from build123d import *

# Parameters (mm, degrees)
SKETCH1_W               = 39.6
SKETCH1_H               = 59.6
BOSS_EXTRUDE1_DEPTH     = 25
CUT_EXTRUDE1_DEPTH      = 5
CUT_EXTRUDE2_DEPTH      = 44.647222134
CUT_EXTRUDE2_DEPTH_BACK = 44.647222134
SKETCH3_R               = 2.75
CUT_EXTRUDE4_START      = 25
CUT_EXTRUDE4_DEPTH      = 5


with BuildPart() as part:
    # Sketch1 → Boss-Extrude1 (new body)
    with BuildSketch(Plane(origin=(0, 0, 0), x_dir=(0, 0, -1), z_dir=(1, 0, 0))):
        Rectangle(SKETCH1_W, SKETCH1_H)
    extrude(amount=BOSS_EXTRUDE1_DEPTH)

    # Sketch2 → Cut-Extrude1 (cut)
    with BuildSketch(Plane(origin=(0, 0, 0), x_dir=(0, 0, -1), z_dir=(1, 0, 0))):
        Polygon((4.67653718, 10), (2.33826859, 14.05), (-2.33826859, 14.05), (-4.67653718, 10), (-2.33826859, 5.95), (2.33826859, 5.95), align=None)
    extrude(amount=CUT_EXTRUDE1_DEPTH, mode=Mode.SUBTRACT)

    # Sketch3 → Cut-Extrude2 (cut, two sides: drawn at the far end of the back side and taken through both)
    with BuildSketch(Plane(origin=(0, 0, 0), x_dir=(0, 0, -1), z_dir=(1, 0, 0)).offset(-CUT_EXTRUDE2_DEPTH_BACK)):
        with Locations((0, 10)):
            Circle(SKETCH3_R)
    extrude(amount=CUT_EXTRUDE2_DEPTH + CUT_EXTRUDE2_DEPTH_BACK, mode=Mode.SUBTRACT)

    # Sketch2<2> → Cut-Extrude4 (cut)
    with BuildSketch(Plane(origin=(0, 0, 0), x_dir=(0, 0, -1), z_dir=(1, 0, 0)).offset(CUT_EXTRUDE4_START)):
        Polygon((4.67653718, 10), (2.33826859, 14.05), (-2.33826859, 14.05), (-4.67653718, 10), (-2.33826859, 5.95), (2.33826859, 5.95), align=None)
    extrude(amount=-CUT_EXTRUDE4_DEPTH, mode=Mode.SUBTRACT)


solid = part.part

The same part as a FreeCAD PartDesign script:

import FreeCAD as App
import Part
import Sketcher
from FreeCAD import Vector
Q = App.Units.Quantity

doc = App.newDocument("Part")
body = doc.addObject("PartDesign::Body", "Body")

sketch1 = body.newObject("Sketcher::SketchObject", "Sketch")
sketch1.AttachmentSupport = (doc.getObject("YZ_Plane"), [""])
sketch1.MapMode = "FlatFace"
sketch1.addGeometry([
    Part.LineSegment(Vector(29.8, 19.8, 0), Vector(-29.8, 19.8, 0)),
    Part.LineSegment(Vector(-29.8, 19.8, 0), Vector(-29.8, -19.8, 0)),
    Part.LineSegment(Vector(-29.8, -19.8, 0), Vector(29.8, -19.8, 0)),
    Part.LineSegment(Vector(29.8, -19.8, 0), Vector(29.8, 19.8, 0)),
], False)
sketch1.addConstraint([
    Sketcher.Constraint("Coincident", 0, 2, 1, 1),
    Sketcher.Constraint("Coincident", 1, 2, 2, 1),
    Sketcher.Constraint("Coincident", 2, 2, 3, 1),
    Sketcher.Constraint("Coincident", 3, 2, 0, 1),
    Sketcher.Constraint("Horizontal", 0),
    Sketcher.Constraint("Vertical", 1),
    Sketcher.Constraint("Horizontal", 2),
    Sketcher.Constraint("Vertical", 3),
    Sketcher.Constraint("Symmetric", 0, 2, 2, 2, -1, 1),
    Sketcher.Constraint("DistanceX", 0, 2, 0, 1, 59.6),
    Sketcher.Constraint("DistanceY", 1, 2, 1, 1, 39.6),
])
pad1 = body.newObject("PartDesign::Pad", "Pad")
pad1.Profile = sketch1
pad1.Length = 25

sketch2 = body.newObject("Sketcher::SketchObject", "Sketch001")
sketch2.AttachmentSupport = (doc.getObject("YZ_Plane"), [""])
sketch2.MapMode = "FlatFace"
sketch2.addGeometry([
    Part.LineSegment(Vector(10, -4.676537, 0), Vector(14.05, -2.338269, 0)),
    Part.LineSegment(Vector(14.05, -2.338269, 0), Vector(14.05, 2.338269, 0)),
    Part.LineSegment(Vector(14.05, 2.338269, 0), Vector(10, 4.676537, 0)),
    Part.LineSegment(Vector(10, 4.676537, 0), Vector(5.95, 2.338269, 0)),
    Part.LineSegment(Vector(5.95, 2.338269, 0), Vector(5.95, -2.338269, 0)),
    Part.LineSegment(Vector(5.95, -2.338269, 0), Vector(10, -4.676537, 0)),
], False)
sketch2.addConstraint([
    Sketcher.Constraint("Coincident", 0, 2, 1, 1),
    Sketcher.Constraint("Coincident", 1, 2, 2, 1),
    Sketcher.Constraint("Coincident", 2, 2, 3, 1),
    Sketcher.Constraint("Coincident", 3, 2, 4, 1),
    Sketcher.Constraint("Coincident", 4, 2, 5, 1),
    Sketcher.Constraint("Coincident", 5, 2, 0, 1),
    Sketcher.Constraint("Vertical", 1),
    Sketcher.Constraint("Vertical", 4),
    Sketcher.Constraint("Symmetric", 2, 2, 5, 2, -1),
    Sketcher.Constraint("Parallel", 0, 3),
    Sketcher.Constraint("Parallel", 2, 5),
    Sketcher.Constraint("Horizontal", 1, 2, 3, 2),
    Sketcher.Constraint("Horizontal", 0, 2, 4, 2),
    Sketcher.Constraint("Angle", 0, Q("30 deg")),
    Sketcher.Constraint("DistanceX", -1, 1, 2, 2, 10.0),
    Sketcher.Constraint("DistanceX", 3, 2, 1, 2, 8.1),
    Sketcher.Constraint("DistanceY", 1, 1, 1, 2, 4.676537),
])
pocket1 = body.newObject("PartDesign::Pocket", "Pocket")
pocket1.Profile = sketch2
pocket1.Length = 5
pocket1.Reversed = True

sketch3 = body.newObject("Sketcher::SketchObject", "Sketch002")
sketch3.AttachmentSupport = (doc.getObject("YZ_Plane"), [""])
sketch3.MapMode = "FlatFace"
sketch3.addGeometry(Part.Circle(Vector(10, 0, 0), Vector(0, 0, 1), 2.75), False)
sketch3.addConstraint([
    Sketcher.Constraint("PointOnObject", 0, 3, -1),
    Sketcher.Constraint("Diameter", 0, 5.5),
    Sketcher.Constraint("DistanceX", -1, 1, 0, 3, 10.0),
])
pocket2 = body.newObject("PartDesign::Pocket", "Pocket001")
pocket2.Profile = sketch3
pocket2.Type = "ThroughAll"
pocket2.Midplane = True

sketch4 = body.newObject("Sketcher::SketchObject", "Sketch003")
sketch4.AttachmentSupport = (doc.getObject("YZ_Plane"), [""])
sketch4.MapMode = "FlatFace"
sketch4.AttachmentOffset = App.Placement(Vector(0, 0, 25), App.Rotation())
sketch4.addGeometry([
    Part.LineSegment(Vector(10, -4.676537, 0), Vector(14.05, -2.338269, 0)),
    Part.LineSegment(Vector(14.05, -2.338269, 0), Vector(14.05, 2.338269, 0)),
    Part.LineSegment(Vector(14.05, 2.338269, 0), Vector(10, 4.676537, 0)),
    Part.LineSegment(Vector(10, 4.676537, 0), Vector(5.95, 2.338269, 0)),
    Part.LineSegment(Vector(5.95, 2.338269, 0), Vector(5.95, -2.338269, 0)),
    Part.LineSegment(Vector(5.95, -2.338269, 0), Vector(10, -4.676537, 0)),
], False)
sketch4.addConstraint([
    Sketcher.Constraint("Coincident", 0, 2, 1, 1),
    Sketcher.Constraint("Coincident", 1, 2, 2, 1),
    Sketcher.Constraint("Coincident", 2, 2, 3, 1),
    Sketcher.Constraint("Coincident", 3, 2, 4, 1),
    Sketcher.Constraint("Coincident", 4, 2, 5, 1),
    Sketcher.Constraint("Coincident", 5, 2, 0, 1),
    Sketcher.Constraint("Vertical", 1),
    Sketcher.Constraint("Vertical", 4),
    Sketcher.Constraint("Symmetric", 2, 2, 5, 2, -1),
    Sketcher.Constraint("Parallel", 0, 3),
    Sketcher.Constraint("Parallel", 2, 5),
    Sketcher.Constraint("Horizontal", 1, 2, 3, 2),
    Sketcher.Constraint("Horizontal", 0, 2, 4, 2),
    Sketcher.Constraint("Angle", 0, Q("30 deg")),
    Sketcher.Constraint("DistanceX", -1, 1, 2, 2, 10.0),
    Sketcher.Constraint("DistanceX", 3, 2, 1, 2, 8.1),
    Sketcher.Constraint("DistanceY", 1, 1, 1, 2, 4.676537),
])
pocket3 = body.newObject("PartDesign::Pocket", "Pocket002")
pocket3.Profile = sketch4
pocket3.Length = 5

doc.recompute()
